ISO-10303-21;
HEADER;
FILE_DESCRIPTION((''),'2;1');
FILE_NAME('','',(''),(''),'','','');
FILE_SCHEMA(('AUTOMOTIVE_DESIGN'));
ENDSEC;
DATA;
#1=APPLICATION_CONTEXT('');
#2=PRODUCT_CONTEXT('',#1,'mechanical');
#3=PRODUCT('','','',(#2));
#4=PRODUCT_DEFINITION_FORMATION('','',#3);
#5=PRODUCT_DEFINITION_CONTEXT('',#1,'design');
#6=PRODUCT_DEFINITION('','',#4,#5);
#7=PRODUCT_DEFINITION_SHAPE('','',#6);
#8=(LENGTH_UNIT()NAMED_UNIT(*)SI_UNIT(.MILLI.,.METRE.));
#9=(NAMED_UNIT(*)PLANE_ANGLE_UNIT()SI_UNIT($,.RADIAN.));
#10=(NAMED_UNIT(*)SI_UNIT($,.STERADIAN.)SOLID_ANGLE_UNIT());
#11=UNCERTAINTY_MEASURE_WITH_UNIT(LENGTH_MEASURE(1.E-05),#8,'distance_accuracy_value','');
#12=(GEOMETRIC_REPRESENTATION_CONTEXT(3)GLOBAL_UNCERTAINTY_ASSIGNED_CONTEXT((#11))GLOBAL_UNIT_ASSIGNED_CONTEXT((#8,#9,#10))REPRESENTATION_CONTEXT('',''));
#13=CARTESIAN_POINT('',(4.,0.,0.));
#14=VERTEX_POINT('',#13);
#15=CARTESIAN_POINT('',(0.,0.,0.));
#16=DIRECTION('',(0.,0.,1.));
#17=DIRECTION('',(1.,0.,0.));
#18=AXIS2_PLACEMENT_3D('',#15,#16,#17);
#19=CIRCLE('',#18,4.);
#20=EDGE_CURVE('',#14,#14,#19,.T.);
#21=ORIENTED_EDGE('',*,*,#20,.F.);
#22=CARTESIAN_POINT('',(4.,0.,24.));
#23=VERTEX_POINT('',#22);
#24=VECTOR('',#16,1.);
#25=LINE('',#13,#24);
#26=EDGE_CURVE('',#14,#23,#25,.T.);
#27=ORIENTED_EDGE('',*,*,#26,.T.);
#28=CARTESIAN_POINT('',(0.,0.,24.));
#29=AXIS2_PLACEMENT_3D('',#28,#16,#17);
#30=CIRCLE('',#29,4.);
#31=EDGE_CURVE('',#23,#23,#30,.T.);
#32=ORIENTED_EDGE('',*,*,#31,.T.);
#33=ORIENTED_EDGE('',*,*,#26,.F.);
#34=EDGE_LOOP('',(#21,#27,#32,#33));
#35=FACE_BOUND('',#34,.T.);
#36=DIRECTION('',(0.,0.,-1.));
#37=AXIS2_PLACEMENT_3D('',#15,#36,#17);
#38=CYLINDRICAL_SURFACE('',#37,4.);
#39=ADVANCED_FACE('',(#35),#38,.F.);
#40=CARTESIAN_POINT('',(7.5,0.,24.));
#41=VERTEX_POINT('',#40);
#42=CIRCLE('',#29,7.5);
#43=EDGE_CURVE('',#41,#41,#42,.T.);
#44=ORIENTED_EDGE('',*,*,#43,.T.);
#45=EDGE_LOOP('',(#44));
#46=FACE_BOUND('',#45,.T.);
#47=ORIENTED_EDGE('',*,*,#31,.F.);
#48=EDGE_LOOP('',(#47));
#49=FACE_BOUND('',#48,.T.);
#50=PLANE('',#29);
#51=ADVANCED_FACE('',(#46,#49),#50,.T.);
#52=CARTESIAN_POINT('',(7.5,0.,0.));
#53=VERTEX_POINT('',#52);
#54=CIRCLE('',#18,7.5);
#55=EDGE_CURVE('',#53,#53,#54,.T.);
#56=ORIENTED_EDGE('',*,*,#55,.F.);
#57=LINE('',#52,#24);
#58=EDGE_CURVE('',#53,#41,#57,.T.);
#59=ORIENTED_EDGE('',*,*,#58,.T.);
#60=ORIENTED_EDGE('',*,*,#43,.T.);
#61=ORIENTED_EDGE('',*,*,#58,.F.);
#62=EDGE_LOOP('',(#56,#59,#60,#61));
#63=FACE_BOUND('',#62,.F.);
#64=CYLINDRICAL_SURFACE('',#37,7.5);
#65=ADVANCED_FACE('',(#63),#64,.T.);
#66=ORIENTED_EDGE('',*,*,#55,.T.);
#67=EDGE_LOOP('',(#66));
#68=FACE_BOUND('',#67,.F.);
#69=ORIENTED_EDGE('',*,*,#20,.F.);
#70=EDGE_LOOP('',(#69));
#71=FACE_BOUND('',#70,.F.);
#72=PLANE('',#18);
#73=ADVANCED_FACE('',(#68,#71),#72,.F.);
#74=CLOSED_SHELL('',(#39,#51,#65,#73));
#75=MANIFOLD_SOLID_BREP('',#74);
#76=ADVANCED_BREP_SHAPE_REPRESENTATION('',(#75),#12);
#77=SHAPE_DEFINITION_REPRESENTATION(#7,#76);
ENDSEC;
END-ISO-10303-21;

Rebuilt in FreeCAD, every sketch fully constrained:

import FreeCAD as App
import Part
import Sketcher

V = App.Vector
Q = App.Units.Quantity

doc = App.newDocument("Part")
body = doc.addObject("PartDesign::Body", "Body")

# Sketch on XY plane
sketch1 = body.newObject("Sketcher::SketchObject", "Sketch")
sketch1.AttachmentSupport = (doc.getObject("XY_Plane"), [""])
sketch1.MapMode = "FlatFace"
sketch1.addGeometry([
    Part.Circle(V(0, 0, 0), V(0, 0, 1), 7.5),
    Part.Circle(V(0, 0, 0), V(0, 0, 1), 4),
], False)
sketch1.addConstraint([
    Sketcher.Constraint("Coincident", 0, 3, -1, 1),
    Sketcher.Constraint("Coincident", 1, 3, -1, 1),
    Sketcher.Constraint("Diameter", 0, Q("15 mm")),
    Sketcher.Constraint("Diameter", 1, Q("8 mm")),
])
pad1 = body.newObject("PartDesign::Pad", "Pad")
pad1.Profile = sketch1
pad1.Length = 24

doc.recompute()
